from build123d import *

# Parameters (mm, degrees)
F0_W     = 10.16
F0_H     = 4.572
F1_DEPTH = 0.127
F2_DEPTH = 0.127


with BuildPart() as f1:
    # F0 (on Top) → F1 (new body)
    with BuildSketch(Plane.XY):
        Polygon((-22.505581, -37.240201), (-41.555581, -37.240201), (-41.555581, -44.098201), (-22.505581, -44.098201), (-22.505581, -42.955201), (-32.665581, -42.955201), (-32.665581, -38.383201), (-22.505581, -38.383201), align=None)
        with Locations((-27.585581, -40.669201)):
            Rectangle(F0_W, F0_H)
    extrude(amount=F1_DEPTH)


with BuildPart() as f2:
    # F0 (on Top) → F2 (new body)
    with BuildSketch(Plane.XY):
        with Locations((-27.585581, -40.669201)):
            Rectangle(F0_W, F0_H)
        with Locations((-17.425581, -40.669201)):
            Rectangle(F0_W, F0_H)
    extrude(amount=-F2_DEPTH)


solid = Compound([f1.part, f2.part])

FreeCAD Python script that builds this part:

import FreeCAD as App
import Part
import Sketcher
from FreeCAD import Vector
Q = App.Units.Quantity


def add_polygon(sketch, points):
    """Adds a closed chain of lines whose ends are joined by coincident constraints."""
    first, n = sketch.GeometryCount, len(points)
    for a, b in zip(points, points[1:] + points[:1]):
        sketch.addGeometry(Part.LineSegment(App.Vector(*a, 0), App.Vector(*b, 0)), False)
    for i in range(n):
        sketch.addConstraint(Sketcher.Constraint("Coincident", first + i, 2, first + (i + 1) % n, 1))

doc = App.newDocument("Part")
body = doc.addObject("PartDesign::Body", "Body")

sketch1 = doc.addObject("Sketcher::SketchObject", "Sketch")
body.addObject(sketch1)
sketch1.AttachmentSupport = (doc.XY_Plane, [""])
sketch1.MapMode = "FlatFace"
add_polygon(sketch1, [(-23, -37), (-42, -37), (-42, -44), (-23, -44)])
sketch1.addConstraint(Sketcher.Constraint("Horizontal", 0))
sketch1.addConstraint(Sketcher.Constraint("Vertical", 1))
sketch1.addConstraint(Sketcher.Constraint("Horizontal", 2))
sketch1.addConstraint(Sketcher.Constraint("Vertical", 3))
sketch1.addConstraint(Sketcher.Constraint("DistanceX", 0, 2, 0, 1, Q("0.75 in")))
sketch1.addConstraint(Sketcher.Constraint("DistanceY", 1, 2, 1, 1, Q("0.27 in")))
sketch1.addConstraint(Sketcher.Constraint("DistanceY", 0, 2, -1, 1, 37.240201))
sketch1.addConstraint(Sketcher.Constraint("DistanceX", 0, 2, -1, 1, 41.555581))
pad1 = doc.addObject("PartDesign::Pad", "Pad")
body.addObject(pad1)
pad1.Profile = sketch1
pad1.Length = Q("0.005 in")
body2 = doc.addObject("PartDesign::Body", "Body001")

sketch2 = doc.addObject("Sketcher::SketchObject", "Sketch001")
body2.addObject(sketch2)
sketch2.AttachmentSupport = (doc.getObject("XY_Plane001"), [""])
sketch2.MapMode = "FlatFace"
add_polygon(sketch2, [(-32.7, -38.4), (-32.7, -43), (-12.3, -43), (-12.3, -38.4)])
sketch2.addConstraint(Sketcher.Constraint("Vertical", 0))
sketch2.addConstraint(Sketcher.Constraint("Horizontal", 1))
sketch2.addConstraint(Sketcher.Constraint("Vertical", 2))
sketch2.addConstraint(Sketcher.Constraint("Horizontal", 3))
sketch2.addConstraint(Sketcher.Constraint("DistanceX", 1, 1, 1, 2, Q("0.8 in")))
sketch2.addConstraint(Sketcher.Constraint("DistanceY", 0, 2, 0, 1, Q("0.18 in")))
sketch2.addConstraint(Sketcher.Constraint("DistanceY", 0, 2, -1, 1, 42.955201))
sketch2.addConstraint(Sketcher.Constraint("DistanceX", 0, 2, -1, 1, 32.665581))
pad2 = doc.addObject("PartDesign::Pad", "Pad001")
body2.addObject(pad2)
pad2.Profile = sketch2
pad2.Length = Q("0.005 in")
pad2.Reversed = True

doc.recompute()
